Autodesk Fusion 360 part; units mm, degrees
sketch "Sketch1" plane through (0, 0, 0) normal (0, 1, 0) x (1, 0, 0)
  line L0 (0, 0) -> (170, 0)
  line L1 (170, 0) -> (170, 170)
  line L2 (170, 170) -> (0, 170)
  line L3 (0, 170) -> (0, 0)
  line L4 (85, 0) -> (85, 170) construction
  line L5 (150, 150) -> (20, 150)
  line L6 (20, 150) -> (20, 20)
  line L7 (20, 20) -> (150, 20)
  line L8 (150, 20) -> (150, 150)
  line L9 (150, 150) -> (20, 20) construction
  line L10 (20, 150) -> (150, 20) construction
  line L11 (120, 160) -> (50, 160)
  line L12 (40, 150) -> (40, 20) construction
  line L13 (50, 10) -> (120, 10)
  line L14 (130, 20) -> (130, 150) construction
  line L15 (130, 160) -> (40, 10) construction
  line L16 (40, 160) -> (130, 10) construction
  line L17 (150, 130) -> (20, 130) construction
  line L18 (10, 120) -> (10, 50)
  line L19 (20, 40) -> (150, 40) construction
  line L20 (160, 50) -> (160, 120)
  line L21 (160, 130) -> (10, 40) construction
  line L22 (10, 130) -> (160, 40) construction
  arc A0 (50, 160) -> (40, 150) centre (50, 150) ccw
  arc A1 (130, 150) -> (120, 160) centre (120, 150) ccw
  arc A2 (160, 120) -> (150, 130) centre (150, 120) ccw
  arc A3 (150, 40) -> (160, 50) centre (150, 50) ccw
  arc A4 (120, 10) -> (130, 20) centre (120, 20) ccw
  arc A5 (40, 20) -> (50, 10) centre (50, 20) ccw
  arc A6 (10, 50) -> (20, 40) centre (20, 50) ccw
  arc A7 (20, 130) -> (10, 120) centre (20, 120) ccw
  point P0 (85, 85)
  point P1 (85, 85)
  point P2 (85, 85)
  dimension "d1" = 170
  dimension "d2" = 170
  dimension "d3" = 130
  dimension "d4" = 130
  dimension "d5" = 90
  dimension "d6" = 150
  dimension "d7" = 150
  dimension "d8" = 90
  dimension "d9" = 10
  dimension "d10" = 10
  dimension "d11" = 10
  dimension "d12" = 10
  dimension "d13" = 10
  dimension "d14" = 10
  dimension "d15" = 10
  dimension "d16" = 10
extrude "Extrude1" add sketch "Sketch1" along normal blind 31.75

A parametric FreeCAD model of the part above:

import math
import FreeCAD as App
import Part
import Sketcher

V = App.Vector
Q = App.Units.Quantity


def add_polygon(sketch, points):
    """Adds a closed chain of lines whose ends are joined by coincident constraints."""
    first, n = sketch.GeometryCount, len(points)
    for a, b in zip(points, points[1:] + points[:1]):
        sketch.addGeometry(Part.LineSegment(App.Vector(*a, 0), App.Vector(*b, 0)), False)
    for i in range(n):
        sketch.addConstraint(Sketcher.Constraint("Coincident", first + i, 2, first + (i + 1) % n, 1))

doc = App.newDocument("Part")
body = doc.addObject("PartDesign::Body", "Body")

sketch1 = doc.addObject("Sketcher::SketchObject", "Sketch")
body.addObject(sketch1)
sketch1.AttachmentSupport = (doc.XZ_Plane, [""])
sketch1.MapMode = "FlatFace"
add_polygon(sketch1, [(0, -170), (0, 0), (170, 0), (170, -170)])
sketch1.addGeometry(Part.LineSegment(V(130, -150, 0), V(150, -150, 0)), False)
sketch1.addGeometry(Part.LineSegment(V(150, -150, 0), V(150, -130, 0)), False)
sketch1.addGeometry(Part.ArcOfCircle(Part.Circle(V(150, -120, 0), V(0, 0, 1), 10), math.radians(-90), math.radians(0)), False)
sketch1.addGeometry(Part.LineSegment(V(160, -120, 0), V(160, -50, 0)), False)
sketch1.addGeometry(Part.ArcOfCircle(Part.Circle(V(150, -50, 0), V(0, 0, 1), 10), math.radians(0), math.radians(90)), False)
sketch1.addGeometry(Part.LineSegment(V(150, -40, 0), V(150, -20, 0)), False)
sketch1.addGeometry(Part.LineSegment(V(150, -20, 0), V(130, -20, 0)), False)
sketch1.addGeometry(Part.ArcOfCircle(Part.Circle(V(120, -20, 0), V(0, 0, 1), 10), math.radians(0), math.radians(90)), False)
sketch1.addGeometry(Part.LineSegment(V(120, -10, 0), V(50, -10, 0)), False)
sketch1.addGeometry(Part.ArcOfCircle(Part.Circle(V(50, -20, 0), V(0, 0, 1), 10), math.radians(90), math.radians(180)), False)
sketch1.addGeometry(Part.LineSegment(V(40, -20, 0), V(20, -20, 0)), False)
sketch1.addGeometry(Part.LineSegment(V(20, -20, 0), V(20, -40, 0)), False)
sketch1.addGeometry(Part.ArcOfCircle(Part.Circle(V(20, -50, 0), V(0, 0, 1), 10), math.radians(90), math.radians(180)), False)
sketch1.addGeometry(Part.LineSegment(V(10, -50, 0), V(10, -120, 0)), False)
sketch1.addGeometry(Part.ArcOfCircle(Part.Circle(V(20, -120, 0), V(0, 0, 1), 10), math.radians(180), math.radians(270)), False)
sketch1.addGeometry(Part.LineSegment(V(20, -130, 0), V(20, -150, 0)), False)
sketch1.addGeometry(Part.LineSegment(V(20, -150, 0), V(40, -150, 0)), False)
sketch1.addGeometry(Part.ArcOfCircle(Part.Circle(V(50, -150, 0), V(0, 0, 1), 10), math.radians(180), math.radians(270)), False)
sketch1.addGeometry(Part.LineSegment(V(50, -160, 0), V(120, -160, 0)), False)
sketch1.addGeometry(Part.ArcOfCircle(Part.Circle(V(120, -150, 0), V(0, 0, 1), 10), math.radians(-90), math.radians(0)), False)
sketch1.addConstraint(Sketcher.Constraint("Coincident", 4, 2, 5, 1))
sketch1.addConstraint(Sketcher.Constraint("Coincident", 5, 2, 6, 1))
sketch1.addConstraint(Sketcher.Constraint("Tangent", 6, 2, 7, 1))
sketch1.addConstraint(Sketcher.Constraint("Tangent", 7, 2, 8, 1))
sketch1.addConstraint(Sketcher.Constraint("Coincident", 8, 2, 9, 1))
sketch1.addConstraint(Sketcher.Constraint("Coincident", 9, 2, 10, 1))
sketch1.addConstraint(Sketcher.Constraint("Coincident", 10, 2, 11, 1))
sketch1.addConstraint(Sketcher.Constraint("Tangent", 11, 2, 12, 1))
sketch1.addConstraint(Sketcher.Constraint("Tangent", 12, 2, 13, 1))
sketch1.addConstraint(Sketcher.Constraint("Coincident", 13, 2, 14, 1))
sketch1.addConstraint(Sketcher.Constraint("Coincident", 14, 2, 15, 1))
sketch1.addConstraint(Sketcher.Constraint("Coincident", 15, 2, 16, 1))
sketch1.addConstraint(Sketcher.Constraint("Tangent", 16, 2, 17, 1))
sketch1.addConstraint(Sketcher.Constraint("Tangent", 17, 2, 18, 1))
sketch1.addConstraint(Sketcher.Constraint("Coincident", 18, 2, 19, 1))
sketch1.addConstraint(Sketcher.Constraint("Coincident", 19, 2, 20, 1))
sketch1.addConstraint(Sketcher.Constraint("Coincident", 20, 2, 21, 1))
sketch1.addConstraint(Sketcher.Constraint("Tangent", 21, 2, 22, 1))
sketch1.addConstraint(Sketcher.Constraint("Tangent", 22, 2, 23, 1))
sketch1.addConstraint(Sketcher.Constraint("Coincident", 23, 2, 4, 1))
sketch1.addConstraint(Sketcher.Constraint("Vertical", 0))
sketch1.addConstraint(Sketcher.Constraint("Horizontal", 1))
sketch1.addConstraint(Sketcher.Constraint("Vertical", 2))
sketch1.addConstraint(Sketcher.Constraint("Horizontal", 3))
sketch1.addConstraint(Sketcher.Constraint("Horizontal", 4))
sketch1.addConstraint(Sketcher.Constraint("Vertical", 5))
sketch1.addConstraint(Sketcher.Constraint("Vertical", 7))
sketch1.addConstraint(Sketcher.Constraint("Vertical", 9))
sketch1.addConstraint(Sketcher.Constraint("Horizontal", 10))
sketch1.addConstraint(Sketcher.Constraint("Horizontal", 12))
sketch1.addConstraint(Sketcher.Constraint("Horizontal", 14))
sketch1.addConstraint(Sketcher.Constraint("Vertical", 15))
sketch1.addConstraint(Sketcher.Constraint("Vertical", 17))
sketch1.addConstraint(Sketcher.Constraint("Vertical", 19))
sketch1.addConstraint(Sketcher.Constraint("Horizontal", 20))
sketch1.addConstraint(Sketcher.Constraint("Horizontal", 22))
sketch1.addConstraint(Sketcher.Constraint("Coincident", 0, 2, -1, 1))
sketch1.addConstraint(Sketcher.Constraint("Equal", 6, 8))
sketch1.addConstraint(Sketcher.Constraint("Equal", 8, 11))
sketch1.addConstraint(Sketcher.Constraint("Equal", 11, 13))
sketch1.addConstraint(Sketcher.Constraint("Equal", 13, 16))
sketch1.addConstraint(Sketcher.Constraint("Equal", 16, 18))
sketch1.addConstraint(Sketcher.Constraint("Equal", 18, 21))
sketch1.addConstraint(Sketcher.Constraint("Equal", 21, 23))
sketch1.addConstraint(Sketcher.Constraint("Horizontal", 8, 3, 16, 3))
sketch1.addConstraint(Sketcher.Constraint("Horizontal", 6, 3, 18, 3))
sketch1.addConstraint(Sketcher.Constraint("Horizontal", 23, 3, 4, 2))
sketch1.addConstraint(Sketcher.Constraint("Horizontal", 13, 3, 9, 2))
sketch1.addConstraint(Sketcher.Constraint("Horizontal", 10, 2, 13, 2))
sketch1.addConstraint(Sketcher.Constraint("Horizontal", 4, 2, 19, 2))
sketch1.addConstraint(Sketcher.Constraint("Vertical", 13, 3, 21, 3))
sketch1.addConstraint(Sketcher.Constraint("Vertical", 11, 3, 23, 3))
sketch1.addConstraint(Sketcher.Constraint("Vertical", 8, 3, 4, 2))
sketch1.addConstraint(Sketcher.Constraint("Vertical", 5, 2, 8, 2))
sketch1.addConstraint(Sketcher.Constraint("Vertical", 18, 3, 14, 2))
sketch1.addConstraint(Sketcher.Constraint("Vertical", 15, 2, 18, 2))
sketch1.addConstraint(Sketcher.Constraint("Equal", 10, 14))
sketch1.addConstraint(Sketcher.Constraint("Equal", 3, 0))
sketch1.addConstraint(Sketcher.Constraint("Equal", 20, 5))
sketch1.addConstraint(Sketcher.Constraint("Equal", 22, 7))
sketch1.addConstraint(Sketcher.Constraint("Equal", 5, 9))
sketch1.addConstraint(Sketcher.Constraint("Radius", 6, Q("10 mm")))
sketch1.addConstraint(Sketcher.Constraint("DistanceX", 1, 1, 1, 2, Q("170 mm")))
sketch1.addConstraint(Sketcher.Constraint("DistanceX", -1, 1, 6, 3, Q("150 mm")))
sketch1.addConstraint(Sketcher.Constraint("DistanceY", 21, 3, -1, 1, Q("150 mm")))
sketch1.addConstraint(Sketcher.Constraint("DistanceY", 5, 2, -1, 1, Q("130 mm")))
sketch1.addConstraint(Sketcher.Constraint("DistanceY", 11, 2, -1, 1, Q("10 mm")))
pad1 = doc.addObject("PartDesign::Pad", "Pad")
body.addObject(pad1)
pad1.Profile = sketch1
pad1.Length = 31.75
pad1.Reversed = True

doc.recompute()
